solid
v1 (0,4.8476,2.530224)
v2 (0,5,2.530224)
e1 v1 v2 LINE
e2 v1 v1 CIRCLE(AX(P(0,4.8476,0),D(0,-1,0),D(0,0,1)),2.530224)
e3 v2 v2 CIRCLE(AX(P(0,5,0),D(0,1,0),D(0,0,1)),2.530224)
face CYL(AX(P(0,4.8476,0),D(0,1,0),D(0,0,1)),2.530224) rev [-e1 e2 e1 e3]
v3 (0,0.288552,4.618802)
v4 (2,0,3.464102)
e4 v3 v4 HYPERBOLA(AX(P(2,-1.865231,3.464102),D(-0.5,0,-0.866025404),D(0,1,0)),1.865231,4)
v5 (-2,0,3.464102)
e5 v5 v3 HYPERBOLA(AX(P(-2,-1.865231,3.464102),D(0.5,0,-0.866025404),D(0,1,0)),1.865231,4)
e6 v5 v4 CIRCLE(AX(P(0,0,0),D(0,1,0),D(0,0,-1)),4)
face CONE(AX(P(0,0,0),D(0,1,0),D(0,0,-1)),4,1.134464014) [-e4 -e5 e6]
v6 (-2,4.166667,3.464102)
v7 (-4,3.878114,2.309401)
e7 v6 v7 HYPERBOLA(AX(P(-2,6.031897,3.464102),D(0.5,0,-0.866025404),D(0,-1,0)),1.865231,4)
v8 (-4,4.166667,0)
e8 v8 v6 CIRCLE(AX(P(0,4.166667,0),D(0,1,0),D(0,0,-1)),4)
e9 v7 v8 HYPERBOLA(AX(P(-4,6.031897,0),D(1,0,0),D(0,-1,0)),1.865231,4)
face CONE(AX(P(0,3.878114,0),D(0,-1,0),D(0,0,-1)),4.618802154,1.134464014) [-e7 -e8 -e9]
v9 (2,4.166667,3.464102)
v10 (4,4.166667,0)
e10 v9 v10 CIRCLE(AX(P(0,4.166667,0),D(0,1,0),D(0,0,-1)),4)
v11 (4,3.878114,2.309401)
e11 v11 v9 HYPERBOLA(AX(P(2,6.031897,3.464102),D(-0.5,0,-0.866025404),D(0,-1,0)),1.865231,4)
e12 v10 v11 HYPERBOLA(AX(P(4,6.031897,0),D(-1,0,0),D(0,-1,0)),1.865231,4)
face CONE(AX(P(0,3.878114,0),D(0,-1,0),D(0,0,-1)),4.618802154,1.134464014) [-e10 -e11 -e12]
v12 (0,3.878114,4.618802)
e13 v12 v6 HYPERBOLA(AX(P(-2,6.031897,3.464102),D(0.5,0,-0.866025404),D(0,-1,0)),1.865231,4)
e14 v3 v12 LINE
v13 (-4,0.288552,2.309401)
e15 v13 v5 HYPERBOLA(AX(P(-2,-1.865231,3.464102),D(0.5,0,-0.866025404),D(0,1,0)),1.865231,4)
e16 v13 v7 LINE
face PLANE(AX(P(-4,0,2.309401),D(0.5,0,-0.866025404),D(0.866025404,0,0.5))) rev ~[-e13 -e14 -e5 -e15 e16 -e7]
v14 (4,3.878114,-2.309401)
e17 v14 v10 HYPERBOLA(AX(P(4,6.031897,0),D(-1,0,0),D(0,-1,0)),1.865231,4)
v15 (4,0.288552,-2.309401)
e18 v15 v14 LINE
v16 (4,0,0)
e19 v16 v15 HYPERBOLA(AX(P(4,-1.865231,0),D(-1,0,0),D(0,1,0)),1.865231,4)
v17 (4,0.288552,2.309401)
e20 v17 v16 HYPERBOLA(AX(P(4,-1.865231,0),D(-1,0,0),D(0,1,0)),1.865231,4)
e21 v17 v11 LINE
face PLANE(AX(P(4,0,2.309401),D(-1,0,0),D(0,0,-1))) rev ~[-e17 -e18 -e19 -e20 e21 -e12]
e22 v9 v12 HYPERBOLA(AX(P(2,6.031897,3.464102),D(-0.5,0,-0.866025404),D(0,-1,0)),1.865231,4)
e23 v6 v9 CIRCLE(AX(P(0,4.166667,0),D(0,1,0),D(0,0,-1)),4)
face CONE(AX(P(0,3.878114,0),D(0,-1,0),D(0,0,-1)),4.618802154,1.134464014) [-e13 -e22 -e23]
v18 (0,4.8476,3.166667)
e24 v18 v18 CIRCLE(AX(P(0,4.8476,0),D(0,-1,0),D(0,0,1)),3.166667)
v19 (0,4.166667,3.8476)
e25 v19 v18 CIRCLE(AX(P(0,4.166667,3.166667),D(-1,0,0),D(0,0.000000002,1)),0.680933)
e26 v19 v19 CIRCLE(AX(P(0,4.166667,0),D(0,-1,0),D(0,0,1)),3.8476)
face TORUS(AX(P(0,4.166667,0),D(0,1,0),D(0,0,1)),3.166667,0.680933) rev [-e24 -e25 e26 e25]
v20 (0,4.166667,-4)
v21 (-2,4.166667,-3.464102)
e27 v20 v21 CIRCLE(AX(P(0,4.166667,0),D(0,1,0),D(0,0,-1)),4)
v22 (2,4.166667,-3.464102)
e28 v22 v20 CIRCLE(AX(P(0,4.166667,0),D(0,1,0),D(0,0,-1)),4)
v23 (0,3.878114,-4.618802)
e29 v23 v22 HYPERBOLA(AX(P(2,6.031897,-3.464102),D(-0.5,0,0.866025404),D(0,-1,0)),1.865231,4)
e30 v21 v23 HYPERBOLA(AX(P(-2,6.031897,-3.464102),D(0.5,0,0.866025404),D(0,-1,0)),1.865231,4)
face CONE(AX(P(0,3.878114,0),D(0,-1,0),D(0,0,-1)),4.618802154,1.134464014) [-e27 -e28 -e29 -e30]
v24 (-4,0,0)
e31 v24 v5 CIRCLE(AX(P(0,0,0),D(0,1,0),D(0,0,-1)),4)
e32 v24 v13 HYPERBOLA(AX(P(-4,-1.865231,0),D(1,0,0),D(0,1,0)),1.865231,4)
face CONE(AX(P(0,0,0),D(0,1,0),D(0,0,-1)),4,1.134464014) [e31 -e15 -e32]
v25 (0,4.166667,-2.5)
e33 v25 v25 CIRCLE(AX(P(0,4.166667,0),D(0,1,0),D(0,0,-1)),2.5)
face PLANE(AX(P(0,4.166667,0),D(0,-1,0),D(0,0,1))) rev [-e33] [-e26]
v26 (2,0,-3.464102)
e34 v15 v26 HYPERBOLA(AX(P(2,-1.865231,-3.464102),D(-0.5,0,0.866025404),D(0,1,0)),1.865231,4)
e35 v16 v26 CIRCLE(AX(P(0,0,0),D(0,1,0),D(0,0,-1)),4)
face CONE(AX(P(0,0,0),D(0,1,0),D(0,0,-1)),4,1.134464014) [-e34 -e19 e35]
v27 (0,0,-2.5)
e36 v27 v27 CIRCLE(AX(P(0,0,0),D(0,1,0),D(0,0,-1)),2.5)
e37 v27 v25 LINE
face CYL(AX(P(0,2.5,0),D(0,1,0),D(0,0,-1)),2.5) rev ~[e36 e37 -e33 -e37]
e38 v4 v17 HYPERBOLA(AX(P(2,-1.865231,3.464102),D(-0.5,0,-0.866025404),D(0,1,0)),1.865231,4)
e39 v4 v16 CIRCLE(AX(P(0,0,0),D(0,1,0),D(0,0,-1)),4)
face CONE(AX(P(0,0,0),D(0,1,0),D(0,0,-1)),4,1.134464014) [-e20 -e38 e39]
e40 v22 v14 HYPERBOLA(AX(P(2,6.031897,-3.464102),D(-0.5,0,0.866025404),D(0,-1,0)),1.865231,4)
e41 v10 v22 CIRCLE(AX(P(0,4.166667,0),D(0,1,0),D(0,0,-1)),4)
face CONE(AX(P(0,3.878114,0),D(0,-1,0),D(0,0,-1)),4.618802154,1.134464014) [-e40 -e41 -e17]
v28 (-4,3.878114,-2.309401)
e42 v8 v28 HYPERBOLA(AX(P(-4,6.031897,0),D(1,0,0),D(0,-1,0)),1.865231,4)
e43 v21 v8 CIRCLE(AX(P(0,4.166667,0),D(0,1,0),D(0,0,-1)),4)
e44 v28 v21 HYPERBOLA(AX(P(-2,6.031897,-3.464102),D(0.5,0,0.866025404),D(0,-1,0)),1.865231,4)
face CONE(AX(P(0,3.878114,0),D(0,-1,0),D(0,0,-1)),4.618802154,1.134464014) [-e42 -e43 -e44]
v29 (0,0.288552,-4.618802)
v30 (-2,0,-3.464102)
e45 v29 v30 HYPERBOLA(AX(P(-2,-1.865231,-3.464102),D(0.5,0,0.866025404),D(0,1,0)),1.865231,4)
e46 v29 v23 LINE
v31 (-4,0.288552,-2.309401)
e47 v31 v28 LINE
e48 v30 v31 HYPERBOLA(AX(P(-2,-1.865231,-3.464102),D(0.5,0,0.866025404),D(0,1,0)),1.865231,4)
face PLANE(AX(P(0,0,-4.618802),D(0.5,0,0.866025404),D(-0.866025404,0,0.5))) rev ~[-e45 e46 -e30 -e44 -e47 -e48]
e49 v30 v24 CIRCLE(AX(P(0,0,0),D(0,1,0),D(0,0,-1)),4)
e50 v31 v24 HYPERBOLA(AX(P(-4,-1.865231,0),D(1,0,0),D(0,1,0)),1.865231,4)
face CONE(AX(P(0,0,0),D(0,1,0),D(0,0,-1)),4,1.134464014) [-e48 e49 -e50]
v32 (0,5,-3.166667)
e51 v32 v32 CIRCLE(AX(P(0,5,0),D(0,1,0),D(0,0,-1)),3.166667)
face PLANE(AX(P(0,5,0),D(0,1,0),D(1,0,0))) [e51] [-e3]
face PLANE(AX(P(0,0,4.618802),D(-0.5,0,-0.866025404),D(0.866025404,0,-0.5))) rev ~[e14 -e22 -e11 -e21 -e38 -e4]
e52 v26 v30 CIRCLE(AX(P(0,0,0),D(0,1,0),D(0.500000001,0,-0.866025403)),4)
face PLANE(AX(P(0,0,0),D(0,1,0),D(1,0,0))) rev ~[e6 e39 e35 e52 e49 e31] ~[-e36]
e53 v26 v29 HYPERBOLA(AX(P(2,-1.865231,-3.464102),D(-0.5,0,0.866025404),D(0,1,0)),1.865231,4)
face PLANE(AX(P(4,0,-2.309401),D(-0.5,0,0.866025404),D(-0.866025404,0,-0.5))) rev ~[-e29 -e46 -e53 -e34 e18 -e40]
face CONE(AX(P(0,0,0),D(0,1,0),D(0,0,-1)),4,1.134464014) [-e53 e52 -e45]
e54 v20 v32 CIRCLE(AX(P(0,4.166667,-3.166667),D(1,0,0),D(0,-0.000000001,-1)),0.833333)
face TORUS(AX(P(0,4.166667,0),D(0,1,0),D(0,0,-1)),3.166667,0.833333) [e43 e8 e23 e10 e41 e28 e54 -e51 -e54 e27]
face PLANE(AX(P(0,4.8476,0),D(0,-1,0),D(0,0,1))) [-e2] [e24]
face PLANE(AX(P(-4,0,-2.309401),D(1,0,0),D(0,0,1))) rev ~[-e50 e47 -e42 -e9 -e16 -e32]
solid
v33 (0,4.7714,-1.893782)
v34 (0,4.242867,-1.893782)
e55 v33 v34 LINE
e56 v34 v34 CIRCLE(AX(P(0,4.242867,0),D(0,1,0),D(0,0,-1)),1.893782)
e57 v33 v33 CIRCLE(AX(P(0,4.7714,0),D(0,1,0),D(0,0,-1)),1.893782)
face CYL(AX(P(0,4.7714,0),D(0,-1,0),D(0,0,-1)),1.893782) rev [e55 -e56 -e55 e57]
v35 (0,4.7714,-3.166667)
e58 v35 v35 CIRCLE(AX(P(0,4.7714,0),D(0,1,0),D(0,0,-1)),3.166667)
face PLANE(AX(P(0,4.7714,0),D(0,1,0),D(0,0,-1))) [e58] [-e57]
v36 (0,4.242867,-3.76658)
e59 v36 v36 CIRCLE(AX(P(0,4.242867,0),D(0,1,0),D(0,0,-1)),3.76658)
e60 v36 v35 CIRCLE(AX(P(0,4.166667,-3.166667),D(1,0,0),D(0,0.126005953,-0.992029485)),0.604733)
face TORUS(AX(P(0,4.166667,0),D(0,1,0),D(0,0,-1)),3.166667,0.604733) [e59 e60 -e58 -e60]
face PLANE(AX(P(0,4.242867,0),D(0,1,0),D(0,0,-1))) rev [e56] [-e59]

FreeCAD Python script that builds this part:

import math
import FreeCAD as App
import Part
import Sketcher
Q = App.Units.Quantity


def add_polygon(sketch, points):
    """Adds a closed chain of lines whose ends are joined by coincident constraints."""
    first, n = sketch.GeometryCount, len(points)
    for a, b in zip(points, points[1:] + points[:1]):
        sketch.addGeometry(Part.LineSegment(App.Vector(*a, 0), App.Vector(*b, 0)), False)
    for i in range(n):
        sketch.addConstraint(Sketcher.Constraint("Coincident", first + i, 2, first + (i + 1) % n, 1))

doc = App.newDocument("Part")
body = doc.addObject("PartDesign::Body", "Body")

# Sketch on XZ plane
sketch1 = body.newObject("Sketcher::SketchObject", "Sketch")
sketch1.AttachmentSupport = (doc.getObject("XZ_Plane"), [""])
sketch1.MapMode = "FlatFace"
add_polygon(sketch1, [(0, -4.618802), (-4, -2.309401), (-4, 2.309401), (0, 4.618802), (4, 2.309401), (4, -2.309401)])  # lines 0-5
sketch1.addConstraint(Sketcher.Constraint("Vertical", 1))
sketch1.addConstraint(Sketcher.Constraint("Vertical", 4))
sketch1.addConstraint(Sketcher.Constraint("Symmetric", 0, 2, 3, 2, -1, 1))
sketch1.addConstraint(Sketcher.Constraint("Symmetric", 2, 2, 5, 2, -1, 1))
sketch1.addConstraint(Sketcher.Constraint("PointOnObject", 2, 2, -2))
sketch1.addConstraint(Sketcher.Constraint("Parallel", 2, 5))
sketch1.addConstraint(Sketcher.Constraint("Horizontal", 1, 2, 3, 2))
sketch1.addConstraint(Sketcher.Constraint("Angle", 0, Q("150 deg")))
sketch1.addConstraint(Sketcher.Constraint("DistanceX", 0, 2, -1, 1, 4.0))
sketch1.addConstraint(Sketcher.Constraint("DistanceY", 0, 2, -1, 1, 2.309401))
pad1 = body.newObject("PartDesign::Pad", "Pad")
pad1.Profile = sketch1
pad1.Length = 5
pad1.Reversed = True
body2 = doc.addObject("PartDesign::Body", "Body001")

# Sketch on YZ plane
sketch2 = body2.newObject("Sketcher::SketchObject", "Sketch001")
sketch2.AttachmentSupport = (doc.getObject("YZ_Plane001"), [""])
sketch2.MapMode = "FlatFace"
add_polygon(sketch2, [(5, 0), (0, 0), (0, -2.5), (5, -2.5)])  # lines 0-3
sketch2.addConstraint(Sketcher.Constraint("Horizontal", 0))
sketch2.addConstraint(Sketcher.Constraint("Vertical", 1))
sketch2.addConstraint(Sketcher.Constraint("Horizontal", 2))
sketch2.addConstraint(Sketcher.Constraint("Vertical", 3))
sketch2.addConstraint(Sketcher.Constraint("Coincident", 0, 2, -1, 1))
sketch2.addConstraint(Sketcher.Constraint("DistanceX", 0, 2, 0, 1, 5.0))
sketch2.addConstraint(Sketcher.Constraint("DistanceY", 1, 2, 1, 1, 2.5))
revolution = body2.newObject("PartDesign::Revolution", "Revolution")
revolution.Profile = sketch2
revolution.ReferenceAxis = (sketch2, ["H_Axis"])
revolution.Angle = 360

# Sketch on YZ plane
sketch3 = body2.newObject("Sketcher::SketchObject", "Sketch002")
sketch3.AttachmentSupport = (doc.getObject("YZ_Plane001"), [""])
sketch3.MapMode = "FlatFace"
add_polygon(sketch3, [(0, 0), (0, -2.5), (2.5, 0)])  # lines 0-2
sketch3.addConstraint(Sketcher.Constraint("Vertical", 0))
sketch3.addConstraint(Sketcher.Constraint("Horizontal", 2))
sketch3.addConstraint(Sketcher.Constraint("Coincident", 2, 2, -1, 1))
sketch3.addConstraint(Sketcher.Constraint("Equal", 2, 0))
sketch3.addConstraint(Sketcher.Constraint("DistanceX", 2, 2, 2, 1, 2.5))
revolution2 = body2.newObject("PartDesign::Revolution", "Revolution001")
revolution2.Profile = sketch3
revolution2.ReferenceAxis = (sketch3, ["H_Axis"])
revolution2.Angle = 360

# Sketch on YZ plane
sketch4 = body2.newObject("Sketcher::SketchObject", "Sketch003")
sketch4.AttachmentSupport = (doc.getObject("YZ_Plane001"), [""])
sketch4.MapMode = "FlatFace"
add_polygon(sketch4, [(5, 0), (5, 2.5), (2.5, 0)])  # lines 0-2
sketch4.addConstraint(Sketcher.Constraint("Vertical", 0))
sketch4.addConstraint(Sketcher.Constraint("Horizontal", 2))
sketch4.addConstraint(Sketcher.Constraint("PointOnObject", 1, 2, -1))
sketch4.addConstraint(Sketcher.Constraint("Equal", 2, 0))
sketch4.addConstraint(Sketcher.Constraint("DistanceX", 2, 1, 2, 2, 2.5))
sketch4.addConstraint(Sketcher.Constraint("DistanceX", -1, 1, 0, 2, 5.0))
revolution3 = body2.newObject("PartDesign::Revolution", "Revolution002")
revolution3.Profile = sketch4
revolution3.ReferenceAxis = (sketch4, ["H_Axis"])
revolution3.Angle = 360
doc.recompute()

boolean = body.newObject("PartDesign::Boolean", "Boolean")
boolean.Type = "Cut"
boolean.addObjects([body2])

# Sketch on YZ plane
sketch5 = body.newObject("Sketcher::SketchObject", "Sketch004")
sketch5.AttachmentSupport = (doc.getObject("YZ_Plane"), [""])
sketch5.MapMode = "FlatFace"
sketch5.addGeometry(Part.LineSegment(App.Vector(0, -4, 0), App.Vector(0, 0, 0)), False)
sketch5.addGeometry(Part.LineSegment(App.Vector(0, 0, 0), App.Vector(-1.27, 0, 0)), False)
sketch5.addGeometry(Part.LineSegment(App.Vector(-1.27, 0, 0), App.Vector(-1.27, -5.888802, 0)), False)
sketch5.addGeometry(Part.LineSegment(App.Vector(-1.27, -5.888802, 0), App.Vector(6.27, -5.888802, 0)), False)
sketch5.addGeometry(Part.LineSegment(App.Vector(6.27, -5.888802, 0), App.Vector(6.27, -3.166667, 0)), False)
sketch5.addGeometry(Part.LineSegment(App.Vector(6.27, -3.166667, 0), App.Vector(5, -3.166667, 0)), False)
sketch5.addGeometry(Part.ArcOfCircle(Part.Circle(App.Vector(4.166667, -3.166667, 0), App.Vector(0, 0, 1), 0.833333), math.radians(-90), math.radians(0)), False)
sketch5.addGeometry(Part.LineSegment(App.Vector(4.166667, -4, 0), App.Vector(3.878114, -4.618802, 0)), False)
sketch5.addGeometry(Part.LineSegment(App.Vector(3.878114, -4.618802, 0), App.Vector(0.288552, -4.618802, 0)), False)
sketch5.addGeometry(Part.LineSegment(App.Vector(0.288552, -4.618802, 0), App.Vector(0, -4, 0)), False)
sketch5.addConstraint(Sketcher.Constraint("Coincident", 0, 2, 1, 1))
sketch5.addConstraint(Sketcher.Constraint("Coincident", 1, 2, 2, 1))
sketch5.addConstraint(Sketcher.Constraint("Coincident", 2, 2, 3, 1))
sketch5.addConstraint(Sketcher.Constraint("Coincident", 3, 2, 4, 1))
sketch5.addConstraint(Sketcher.Constraint("Coincident", 4, 2, 5, 1))
sketch5.addConstraint(Sketcher.Constraint("Coincident", 5, 2, 6, 2))
sketch5.addConstraint(Sketcher.Constraint("Coincident", 6, 1, 7, 1))
sketch5.addConstraint(Sketcher.Constraint("Coincident", 7, 2, 8, 1))
sketch5.addConstraint(Sketcher.Constraint("Coincident", 8, 2, 9, 1))
sketch5.addConstraint(Sketcher.Constraint("Coincident", 9, 2, 0, 1))
sketch5.addConstraint(Sketcher.Constraint("Vertical", 0))
sketch5.addConstraint(Sketcher.Constraint("Horizontal", 1))
sketch5.addConstraint(Sketcher.Constraint("Vertical", 2))
sketch5.addConstraint(Sketcher.Constraint("Horizontal", 3))
sketch5.addConstraint(Sketcher.Constraint("Vertical", 4))
sketch5.addConstraint(Sketcher.Constraint("Horizontal", 5))
sketch5.addConstraint(Sketcher.Constraint("Horizontal", 8))
sketch5.addConstraint(Sketcher.Constraint("Coincident", 0, 2, -1, 1))
sketch5.addConstraint(Sketcher.Constraint("Horizontal", 6, 3, 4, 2))
sketch5.addConstraint(Sketcher.Constraint("Horizontal", 6, 1, 9, 2))
sketch5.addConstraint(Sketcher.Constraint("Equal", 1, 5))
sketch5.addConstraint(Sketcher.Constraint("Equal", 7, 9))
sketch5.addConstraint(Sketcher.Constraint("DistanceY", 0, 1, 0, 2, 4.0))
sketch5.addConstraint(Sketcher.Constraint("Angle", 7, Q("-115 deg")))
sketch5.addConstraint(Sketcher.Constraint("DistanceX", -1, 1, 5, 2, 5.0))
sketch5.addConstraint(Sketcher.Constraint("DistanceX", 1, 2, 1, 1, 1.27))
sketch5.addConstraint(Sketcher.Constraint("DistanceY", 3, 2, 7, 2, 1.27))
sketch5.addConstraint(Sketcher.Constraint("Radius", 6, 0.833333))
sketch5.addConstraint(Sketcher.Constraint("DistanceX", 8, 2, 8, 1, 3.589562))
sketch5.addConstraint(Sketcher.Constraint("DistanceY", 2, 2, 2, 1, 5.888802))
groove = body.newObject("PartDesign::Groove", "Groove")
groove.Profile = sketch5
groove.ReferenceAxis = (sketch5, ["H_Axis"])
groove.Angle = 360

# Sketch on YZ plane
sketch6 = body.newObject("Sketcher::SketchObject", "Sketch005")
sketch6.AttachmentSupport = (doc.getObject("YZ_Plane"), [""])
sketch6.MapMode = "FlatFace"
sketch6.addGeometry(Part.LineSegment(App.Vector(4.166667, 0, 0), App.Vector(4.166667, -3.8476, 0)), False)
sketch6.addGeometry(Part.ArcOfCircle(Part.Circle(App.Vector(4.166667, -3.166667, 0), App.Vector(0, 0, 1), 0.680933), math.radians(-90), math.radians(0)), False)
sketch6.addGeometry(Part.LineSegment(App.Vector(4.8476, -3.166667, 0), App.Vector(4.8476, -2.530224, 0)), False)
sketch6.addGeometry(Part.LineSegment(App.Vector(4.8476, -2.530224, 0), App.Vector(6.27, -2.530224, 0)), False)
sketch6.addGeometry(Part.LineSegment(App.Vector(6.27, -2.530224, 0), App.Vector(6.27, 0, 0)), False)
sketch6.addGeometry(Part.LineSegment(App.Vector(6.27, 0, 0), App.Vector(4.166667, 0, 0)), False)
sketch6.addConstraint(Sketcher.Constraint("Coincident", 0, 2, 1, 1))
sketch6.addConstraint(Sketcher.Constraint("Tangent", 1, 2, 2, 1))
sketch6.addConstraint(Sketcher.Constraint("Coincident", 2, 2, 3, 1))
sketch6.addConstraint(Sketcher.Constraint("Coincident", 3, 2, 4, 1))
sketch6.addConstraint(Sketcher.Constraint("Coincident", 4, 2, 5, 1))
sketch6.addConstraint(Sketcher.Constraint("Coincident", 5, 2, 0, 1))
sketch6.addConstraint(Sketcher.Constraint("Vertical", 0))
sketch6.addConstraint(Sketcher.Constraint("Vertical", 2))
sketch6.addConstraint(Sketcher.Constraint("Horizontal", 3))
sketch6.addConstraint(Sketcher.Constraint("Vertical", 4))
sketch6.addConstraint(Sketcher.Constraint("Horizontal", 5))
sketch6.addConstraint(Sketcher.Constraint("PointOnObject", 4, 2, -1))
sketch6.addConstraint(Sketcher.Constraint("Vertical", 1, 3, 0, 2))
sketch6.addConstraint(Sketcher.Constraint("DistanceX", -1, 1, 3, 2, 6.27))
sketch6.addConstraint(Sketcher.Constraint("DistanceX", 3, 1, 3, 2, 1.4224))
sketch6.addConstraint(Sketcher.Constraint("DistanceY", 0, 2, 0, 1, 3.8476))
sketch6.addConstraint(Sketcher.Constraint("Radius", 1, 0.680933))
sketch6.addConstraint(Sketcher.Constraint("DistanceY", 2, 1, 2, 2, 0.636442))
groove2 = body.newObject("PartDesign::Groove", "Groove001")
groove2.Profile = sketch6
groove2.ReferenceAxis = (sketch6, ["H_Axis"])
groove2.Angle = 360
body3 = doc.addObject("PartDesign::Body", "Body002")

# Sketch on YZ plane
sketch7 = body3.newObject("Sketcher::SketchObject", "Sketch006")
sketch7.AttachmentSupport = (doc.getObject("YZ_Plane002"), [""])
sketch7.MapMode = "FlatFace"
sketch7.addGeometry(Part.LineSegment(App.Vector(4.242867, -1.893782, 0), App.Vector(4.242867, -3.76658, 0)), False)
sketch7.addGeometry(Part.ArcOfCircle(Part.Circle(App.Vector(4.166667, -3.166667, 0), App.Vector(0, 0, 1), 0.604733), math.radians(-82.761148), math.radians(0)), False)
sketch7.addGeometry(Part.LineSegment(App.Vector(4.7714, -3.166667, 0), App.Vector(4.7714, -1.893782, 0)), False)
sketch7.addGeometry(Part.LineSegment(App.Vector(4.7714, -1.893782, 0), App.Vector(4.242867, -1.893782, 0)), False)
sketch7.addConstraint(Sketcher.Constraint("Coincident", 0, 2, 1, 1))
sketch7.addConstraint(Sketcher.Constraint("Tangent", 1, 2, 2, 1))
sketch7.addConstraint(Sketcher.Constraint("Coincident", 2, 2, 3, 1))
sketch7.addConstraint(Sketcher.Constraint("Coincident", 3, 2, 0, 1))
sketch7.addConstraint(Sketcher.Constraint("Vertical", 0))
sketch7.addConstraint(Sketcher.Constraint("Vertical", 2))
sketch7.addConstraint(Sketcher.Constraint("Horizontal", 3))
sketch7.addConstraint(Sketcher.Constraint("Radius", 1, 0.604733))
sketch7.addConstraint(Sketcher.Constraint("DistanceX", -1, 1, 1, 2, 4.7714))
sketch7.addConstraint(Sketcher.Constraint("DistanceX", 1, 3, 0, 2, 0.0762))
sketch7.addConstraint(Sketcher.Constraint("DistanceY", 0, 2, 0, 1, 1.872798))
sketch7.addConstraint(Sketcher.Constraint("DistanceY", 0, 2, -1, 1, 3.76658))
revolution4 = body3.newObject("PartDesign::Revolution", "Revolution003")
revolution4.Profile = sketch7
revolution4.ReferenceAxis = (sketch7, ["H_Axis"])
revolution4.Angle = 360

doc.recompute()
